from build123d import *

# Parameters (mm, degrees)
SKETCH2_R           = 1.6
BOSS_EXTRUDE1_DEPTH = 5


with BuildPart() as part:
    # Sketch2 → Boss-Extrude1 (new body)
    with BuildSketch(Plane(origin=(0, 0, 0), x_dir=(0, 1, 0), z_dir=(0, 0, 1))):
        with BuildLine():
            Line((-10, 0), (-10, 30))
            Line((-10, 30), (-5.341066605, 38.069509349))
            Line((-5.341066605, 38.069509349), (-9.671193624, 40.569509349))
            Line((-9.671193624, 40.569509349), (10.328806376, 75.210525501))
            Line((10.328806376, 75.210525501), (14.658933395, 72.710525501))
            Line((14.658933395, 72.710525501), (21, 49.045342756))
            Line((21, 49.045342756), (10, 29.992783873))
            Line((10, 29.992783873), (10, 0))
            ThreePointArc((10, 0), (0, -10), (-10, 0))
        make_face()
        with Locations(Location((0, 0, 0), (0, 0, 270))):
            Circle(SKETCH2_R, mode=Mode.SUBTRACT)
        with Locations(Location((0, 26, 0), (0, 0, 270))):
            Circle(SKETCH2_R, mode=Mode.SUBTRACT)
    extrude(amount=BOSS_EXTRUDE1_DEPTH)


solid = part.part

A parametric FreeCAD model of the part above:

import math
import FreeCAD as App
import Part
import Sketcher
from FreeCAD import Vector
Q = App.Units.Quantity

doc = App.newDocument("Part")
params = doc.addObject("Spreadsheet::Sheet", "Params")
for row, (alias, value) in enumerate([
    ("sketch1_radius", "10 mm"),
    ("sketch1_diameter", "3.2 mm"),
    ("sketch1_width", "30 mm"),
    ("sketch1_length", "22 mm"),
    ("sketch1_length2", "5 mm"),
    ("pad1_length", "5 mm"),
], start=1):
    params.set(f"A{row}", alias)
    params.set(f"B{row}", "=" + value)
    params.setAlias(f"B{row}", alias)

body = doc.addObject("PartDesign::Body", "Body")

sketch1 = doc.addObject("Sketcher::SketchObject", "Sketch")
body.addObject(sketch1)
sketch1.AttachmentSupport = (doc.XY_Plane, [""])
sketch1.MapMode = "FlatFace"
sketch1.addGeometry(Part.LineSegment(Vector(-30, -10, 0), Vector(0, -10, 0)), False)
sketch1.addGeometry(Part.ArcOfCircle(Part.Circle(Vector(0, 0, 0), Vector(0, 0, 1), 10), math.radians(-90), math.radians(90)), False)
sketch1.addGeometry(Part.LineSegment(Vector(0, 10, 0), Vector(-29.992784, 10, 0)), False)
sketch1.addGeometry(Part.LineSegment(Vector(-29.992784, 10, 0), Vector(-49.045343, 21, 0)), False)
sketch1.addGeometry(Part.LineSegment(Vector(-49.045343, 21, 0), Vector(-72.710526, 14.658933, 0)), False)
sketch1.addGeometry(Part.LineSegment(Vector(-72.710526, 14.658933, 0), Vector(-75.210526, 10.328806, 0)), False)
sketch1.addGeometry(Part.LineSegment(Vector(-75.210526, 10.328806, 0), Vector(-40.569509, -9.671194, 0)), False)
sketch1.addGeometry(Part.LineSegment(Vector(-40.569509, -9.671194, 0), Vector(-38.069509, -5.341067, 0)), False)
sketch1.addGeometry(Part.LineSegment(Vector(-38.069509, -5.341067, 0), Vector(-30, -10, 0)), False)
sketch1.addGeometry(Part.Circle(Vector(0, 0, 0), Vector(0, 0, 1), 1.6), False)
sketch1.addGeometry(Part.Circle(Vector(-26, 0, 0), Vector(0, 0, 1), 1.6), False)
sketch1.addConstraint(Sketcher.Constraint("Tangent", 0, 2, 1, 1))
sketch1.addConstraint(Sketcher.Constraint("Tangent", 1, 2, 2, 1))
sketch1.addConstraint(Sketcher.Constraint("Coincident", 2, 2, 3, 1))
sketch1.addConstraint(Sketcher.Constraint("Coincident", 3, 2, 4, 1))
sketch1.addConstraint(Sketcher.Constraint("Coincident", 4, 2, 5, 1))
sketch1.addConstraint(Sketcher.Constraint("Coincident", 5, 2, 6, 1))
sketch1.addConstraint(Sketcher.Constraint("Coincident", 6, 2, 7, 1))
sketch1.addConstraint(Sketcher.Constraint("Coincident", 7, 2, 8, 1))
sketch1.addConstraint(Sketcher.Constraint("Coincident", 8, 2, 0, 1))
sketch1.addConstraint(Sketcher.Constraint("Horizontal", 0))
sketch1.addConstraint(Sketcher.Constraint("Horizontal", 2))
sketch1.addConstraint(Sketcher.Constraint("Coincident", 1, 3, -1, 1))
sketch1.addConstraint(Sketcher.Constraint("Coincident", 9, 3, -1, 1))
sketch1.addConstraint(Sketcher.Constraint("Equal", 9, 10))
sketch1.addConstraint(Sketcher.Constraint("PointOnObject", 10, 3, -1))
sketch1.addConstraint(Sketcher.Constraint("Perpendicular", 3, 5))
sketch1.addConstraint(Sketcher.Constraint("Perpendicular", 5, 6))
sketch1.addConstraint(Sketcher.Constraint("Perpendicular", 6, 7))
sketch1.addConstraint(Sketcher.Constraint("Perpendicular", 7, 8))
sketch1.addConstraint(Sketcher.Constraint("Equal", 5, 7))
sketch1.addConstraint(Sketcher.Constraint("Radius", 1, 10.0))
sketch1.addConstraint(Sketcher.Constraint("Diameter", 9, 3.2))
sketch1.addConstraint(Sketcher.Constraint("DistanceX", 0, 1, 0, 2, 30.0))
sketch1.addConstraint(Sketcher.Constraint("Angle", 3, Q("150 deg")))
sketch1.addConstraint(Sketcher.Constraint("Angle", 4, Q("-165 deg")))
sketch1.addConstraint(Sketcher.Constraint("Distance", 3, 22.0))
sketch1.addConstraint(Sketcher.Constraint("Distance", 5, 5.0))
sketch1.addConstraint(Sketcher.Constraint("Distance", 6, 40.0))
sketch1.addConstraint(Sketcher.Constraint("DistanceX", 10, 3, -1, 1, 26.0))
sketch1.addConstraint(Sketcher.Constraint("Distance", 4, 24.5))
sketch1.setExpression("Constraints[20]", "Params.sketch1_radius")
sketch1.setExpression("Constraints[21]", "Params.sketch1_diameter")
sketch1.setExpression("Constraints[22]", "Params.sketch1_width")
sketch1.setExpression("Constraints[25]", "Params.sketch1_length")
sketch1.setExpression("Constraints[26]", "Params.sketch1_length2")
pad1 = doc.addObject("PartDesign::Pad", "Pad")
body.addObject(pad1)
pad1.Profile = sketch1
pad1.setExpression("Length", "Params.pad1_length")

doc.recompute()
